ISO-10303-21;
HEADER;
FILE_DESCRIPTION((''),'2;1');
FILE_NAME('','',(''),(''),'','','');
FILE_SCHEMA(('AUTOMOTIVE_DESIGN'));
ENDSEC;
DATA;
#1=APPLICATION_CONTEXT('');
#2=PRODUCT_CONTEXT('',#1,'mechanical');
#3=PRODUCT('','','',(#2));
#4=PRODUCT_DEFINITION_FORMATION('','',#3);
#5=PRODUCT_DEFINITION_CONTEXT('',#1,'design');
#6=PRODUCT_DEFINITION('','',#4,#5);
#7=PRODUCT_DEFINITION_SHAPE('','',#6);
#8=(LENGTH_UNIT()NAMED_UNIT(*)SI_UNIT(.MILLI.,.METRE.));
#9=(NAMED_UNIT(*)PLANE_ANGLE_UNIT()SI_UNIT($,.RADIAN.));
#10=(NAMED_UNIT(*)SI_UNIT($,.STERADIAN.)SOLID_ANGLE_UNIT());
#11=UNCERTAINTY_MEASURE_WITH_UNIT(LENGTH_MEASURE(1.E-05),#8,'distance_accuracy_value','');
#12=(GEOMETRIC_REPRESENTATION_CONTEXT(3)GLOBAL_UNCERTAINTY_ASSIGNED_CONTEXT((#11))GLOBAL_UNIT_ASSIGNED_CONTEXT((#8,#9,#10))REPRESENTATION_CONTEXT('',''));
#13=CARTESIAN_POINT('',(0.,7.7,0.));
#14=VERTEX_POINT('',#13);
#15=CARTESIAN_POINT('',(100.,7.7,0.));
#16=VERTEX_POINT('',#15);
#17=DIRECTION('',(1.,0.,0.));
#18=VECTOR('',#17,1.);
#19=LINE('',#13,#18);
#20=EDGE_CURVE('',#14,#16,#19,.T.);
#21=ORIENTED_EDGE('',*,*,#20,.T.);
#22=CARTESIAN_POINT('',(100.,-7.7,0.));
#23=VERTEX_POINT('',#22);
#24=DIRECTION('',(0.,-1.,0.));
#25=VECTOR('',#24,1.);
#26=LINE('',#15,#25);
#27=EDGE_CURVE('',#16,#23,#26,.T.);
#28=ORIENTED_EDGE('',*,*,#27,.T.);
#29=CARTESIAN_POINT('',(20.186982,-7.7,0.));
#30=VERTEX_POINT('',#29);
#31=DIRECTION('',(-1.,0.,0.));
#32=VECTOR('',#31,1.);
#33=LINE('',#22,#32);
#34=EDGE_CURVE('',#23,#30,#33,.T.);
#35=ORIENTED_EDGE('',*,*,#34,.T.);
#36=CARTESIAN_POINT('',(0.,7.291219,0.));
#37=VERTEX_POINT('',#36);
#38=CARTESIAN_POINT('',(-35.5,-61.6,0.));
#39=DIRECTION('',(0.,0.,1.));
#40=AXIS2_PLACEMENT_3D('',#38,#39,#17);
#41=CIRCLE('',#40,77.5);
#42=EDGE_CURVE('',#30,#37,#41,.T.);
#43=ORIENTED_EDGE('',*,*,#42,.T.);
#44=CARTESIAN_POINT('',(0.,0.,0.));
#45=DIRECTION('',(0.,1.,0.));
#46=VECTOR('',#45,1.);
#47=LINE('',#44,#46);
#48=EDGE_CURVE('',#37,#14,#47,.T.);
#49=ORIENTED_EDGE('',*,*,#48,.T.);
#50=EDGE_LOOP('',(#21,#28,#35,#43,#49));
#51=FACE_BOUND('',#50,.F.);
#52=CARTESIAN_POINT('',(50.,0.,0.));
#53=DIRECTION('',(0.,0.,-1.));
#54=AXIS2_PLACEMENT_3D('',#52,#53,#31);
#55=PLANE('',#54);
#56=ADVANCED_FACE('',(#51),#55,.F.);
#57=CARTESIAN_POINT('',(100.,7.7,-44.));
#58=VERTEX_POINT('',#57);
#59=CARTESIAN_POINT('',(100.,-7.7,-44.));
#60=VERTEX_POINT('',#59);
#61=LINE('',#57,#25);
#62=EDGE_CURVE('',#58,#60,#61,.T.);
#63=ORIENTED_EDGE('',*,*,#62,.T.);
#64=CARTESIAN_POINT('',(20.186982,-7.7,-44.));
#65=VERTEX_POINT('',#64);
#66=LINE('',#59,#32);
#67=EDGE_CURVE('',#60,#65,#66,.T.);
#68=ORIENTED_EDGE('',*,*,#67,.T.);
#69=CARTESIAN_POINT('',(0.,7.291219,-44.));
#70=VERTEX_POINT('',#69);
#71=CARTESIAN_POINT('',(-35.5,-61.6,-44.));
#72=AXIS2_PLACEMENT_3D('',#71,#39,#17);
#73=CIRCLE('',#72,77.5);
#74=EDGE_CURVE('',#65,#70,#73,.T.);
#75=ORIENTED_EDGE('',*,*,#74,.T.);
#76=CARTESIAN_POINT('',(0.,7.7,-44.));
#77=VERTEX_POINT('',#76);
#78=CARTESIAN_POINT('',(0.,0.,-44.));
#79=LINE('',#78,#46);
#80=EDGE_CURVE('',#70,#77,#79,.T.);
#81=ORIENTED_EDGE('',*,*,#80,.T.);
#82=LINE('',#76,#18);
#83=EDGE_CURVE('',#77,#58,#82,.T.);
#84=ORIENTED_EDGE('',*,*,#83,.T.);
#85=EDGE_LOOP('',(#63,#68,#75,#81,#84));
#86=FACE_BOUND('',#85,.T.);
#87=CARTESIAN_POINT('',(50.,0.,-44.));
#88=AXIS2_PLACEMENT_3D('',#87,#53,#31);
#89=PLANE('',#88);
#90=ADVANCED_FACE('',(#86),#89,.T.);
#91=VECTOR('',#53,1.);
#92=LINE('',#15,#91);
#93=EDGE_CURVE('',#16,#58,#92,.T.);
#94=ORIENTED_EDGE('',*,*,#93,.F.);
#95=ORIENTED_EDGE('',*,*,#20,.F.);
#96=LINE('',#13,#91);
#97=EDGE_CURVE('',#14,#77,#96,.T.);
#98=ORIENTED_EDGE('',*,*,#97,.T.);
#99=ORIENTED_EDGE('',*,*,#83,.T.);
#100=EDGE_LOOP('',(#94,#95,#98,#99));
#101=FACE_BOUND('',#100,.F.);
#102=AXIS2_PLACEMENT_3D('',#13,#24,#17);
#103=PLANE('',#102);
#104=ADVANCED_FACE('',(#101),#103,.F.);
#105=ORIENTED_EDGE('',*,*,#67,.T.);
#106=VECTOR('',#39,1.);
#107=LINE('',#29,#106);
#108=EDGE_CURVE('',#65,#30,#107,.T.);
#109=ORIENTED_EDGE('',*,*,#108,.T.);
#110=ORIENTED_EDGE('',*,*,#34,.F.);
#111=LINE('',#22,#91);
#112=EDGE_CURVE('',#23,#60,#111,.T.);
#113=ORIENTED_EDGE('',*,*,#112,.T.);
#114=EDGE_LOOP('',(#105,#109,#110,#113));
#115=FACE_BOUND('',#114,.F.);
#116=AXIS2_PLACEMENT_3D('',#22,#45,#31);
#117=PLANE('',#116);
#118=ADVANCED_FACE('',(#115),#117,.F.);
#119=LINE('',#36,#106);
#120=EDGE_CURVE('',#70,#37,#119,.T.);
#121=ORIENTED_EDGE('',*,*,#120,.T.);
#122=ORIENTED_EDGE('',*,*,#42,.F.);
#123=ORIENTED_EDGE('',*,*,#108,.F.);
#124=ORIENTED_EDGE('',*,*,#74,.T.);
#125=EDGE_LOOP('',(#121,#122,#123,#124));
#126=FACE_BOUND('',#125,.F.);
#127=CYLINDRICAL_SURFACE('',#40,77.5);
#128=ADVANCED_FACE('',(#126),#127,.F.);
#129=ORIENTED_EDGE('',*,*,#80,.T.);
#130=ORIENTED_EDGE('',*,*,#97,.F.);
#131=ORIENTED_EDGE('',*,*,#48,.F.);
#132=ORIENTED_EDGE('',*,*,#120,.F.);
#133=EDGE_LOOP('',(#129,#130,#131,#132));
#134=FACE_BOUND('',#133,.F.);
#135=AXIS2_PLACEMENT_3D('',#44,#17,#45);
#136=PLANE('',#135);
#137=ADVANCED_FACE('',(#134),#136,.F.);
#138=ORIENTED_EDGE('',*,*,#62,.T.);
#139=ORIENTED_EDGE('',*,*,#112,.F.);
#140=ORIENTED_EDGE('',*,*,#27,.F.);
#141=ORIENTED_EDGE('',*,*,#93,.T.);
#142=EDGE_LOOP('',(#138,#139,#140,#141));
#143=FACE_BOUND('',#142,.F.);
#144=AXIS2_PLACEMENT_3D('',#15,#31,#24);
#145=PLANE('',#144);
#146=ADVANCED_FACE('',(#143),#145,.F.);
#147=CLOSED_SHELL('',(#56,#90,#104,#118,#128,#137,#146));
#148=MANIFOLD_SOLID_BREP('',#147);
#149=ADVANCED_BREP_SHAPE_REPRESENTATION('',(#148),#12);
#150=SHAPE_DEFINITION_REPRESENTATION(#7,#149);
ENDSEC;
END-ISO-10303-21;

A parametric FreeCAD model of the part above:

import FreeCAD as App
import Part
import Sketcher
from FreeCAD import Vector
Q = App.Units.Quantity


def add_polygon(sketch, points):
    """Adds a closed chain of lines whose ends are joined by coincident constraints."""
    first, n = sketch.GeometryCount, len(points)
    for a, b in zip(points, points[1:] + points[:1]):
        sketch.addGeometry(Part.LineSegment(App.Vector(*a, 0), App.Vector(*b, 0)), False)
    for i in range(n):
        sketch.addConstraint(Sketcher.Constraint("Coincident", first + i, 2, first + (i + 1) % n, 1))

doc = App.newDocument("Part")
body = doc.addObject("PartDesign::Body", "Body")

sketch1 = body.newObject("Sketcher::SketchObject", "Sketch")
sketch1.AttachmentSupport = (doc.getObject("XY_Plane"), [""])
sketch1.MapMode = "FlatFace"
add_polygon(sketch1, [(0, 7.7), (0, -7.7), (100, -7.7), (100, 7.7)])
sketch1.addConstraint([
    Sketcher.Constraint("Vertical", 0),
    Sketcher.Constraint("Horizontal", 1),
    Sketcher.Constraint("Vertical", 2),
    Sketcher.Constraint("Horizontal", 3),
    Sketcher.Constraint("Symmetric", 0, 2, 3, 2, -1, 1),
    Sketcher.Constraint("DistanceX", 1, 1, 1, 2, Q("100 mm")),
    Sketcher.Constraint("DistanceY", 0, 2, 0, 1, Q("15.4 mm")),
])
pad1 = body.newObject("PartDesign::Pad", "Pad")
pad1.Profile = sketch1
pad1.Length = 44
pad1.Reversed = True

sketch2 = body.newObject("Sketcher::SketchObject", "Sketch001")
sketch2.AttachmentSupport = (doc.getObject("XY_Plane"), [""])
sketch2.MapMode = "FlatFace"
sketch2.addGeometry(Part.Circle(Vector(-35.5, -61.6, 0), Vector(0, 0, 1), 77.5), False)
sketch2.addConstraint([
    Sketcher.Constraint("Diameter", 0, Q("155 mm")),
    Sketcher.Constraint("DistanceX", 0, 3, -1, 1, Q("35.5 mm")),
    Sketcher.Constraint("DistanceY", 0, 3, -1, 1, Q("61.6 mm")),
])
pocket1 = body.newObject("PartDesign::Pocket", "Pocket")
pocket1.Profile = sketch2
pocket1.Length = 44

doc.recompute()
